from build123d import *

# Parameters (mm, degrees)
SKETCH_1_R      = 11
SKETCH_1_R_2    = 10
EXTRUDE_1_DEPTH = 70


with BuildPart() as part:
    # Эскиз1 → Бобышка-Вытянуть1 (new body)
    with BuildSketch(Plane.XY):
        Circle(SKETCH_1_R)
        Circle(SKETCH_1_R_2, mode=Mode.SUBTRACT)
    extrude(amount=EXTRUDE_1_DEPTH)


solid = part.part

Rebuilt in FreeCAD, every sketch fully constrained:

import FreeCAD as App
import Part
import Sketcher

doc = App.newDocument("Part")
body = doc.addObject("PartDesign::Body", "Body")

# Sketch on XY plane
sketch1 = body.newObject("Sketcher::SketchObject", "Sketch")
sketch1.AttachmentSupport = (doc.getObject("XY_Plane"), [""])
sketch1.MapMode = "FlatFace"
sketch1.addGeometry([
    Part.Circle(App.Vector(0, 0, 0), App.Vector(0, 0, 1), 11),
    Part.Circle(App.Vector(0, 0, 0), App.Vector(0, 0, 1), 10),
], False)
sketch1.addConstraint([
    Sketcher.Constraint("Coincident", 0, 3, -1, 1),
    Sketcher.Constraint("Coincident", 1, 3, -1, 1),
    Sketcher.Constraint("Diameter", 0, 22.0),
    Sketcher.Constraint("Diameter", 1, 20.0),
])
pad1 = body.newObject("PartDesign::Pad", "Pad")
pad1.Profile = sketch1
pad1.Length = 70

doc.recompute()
